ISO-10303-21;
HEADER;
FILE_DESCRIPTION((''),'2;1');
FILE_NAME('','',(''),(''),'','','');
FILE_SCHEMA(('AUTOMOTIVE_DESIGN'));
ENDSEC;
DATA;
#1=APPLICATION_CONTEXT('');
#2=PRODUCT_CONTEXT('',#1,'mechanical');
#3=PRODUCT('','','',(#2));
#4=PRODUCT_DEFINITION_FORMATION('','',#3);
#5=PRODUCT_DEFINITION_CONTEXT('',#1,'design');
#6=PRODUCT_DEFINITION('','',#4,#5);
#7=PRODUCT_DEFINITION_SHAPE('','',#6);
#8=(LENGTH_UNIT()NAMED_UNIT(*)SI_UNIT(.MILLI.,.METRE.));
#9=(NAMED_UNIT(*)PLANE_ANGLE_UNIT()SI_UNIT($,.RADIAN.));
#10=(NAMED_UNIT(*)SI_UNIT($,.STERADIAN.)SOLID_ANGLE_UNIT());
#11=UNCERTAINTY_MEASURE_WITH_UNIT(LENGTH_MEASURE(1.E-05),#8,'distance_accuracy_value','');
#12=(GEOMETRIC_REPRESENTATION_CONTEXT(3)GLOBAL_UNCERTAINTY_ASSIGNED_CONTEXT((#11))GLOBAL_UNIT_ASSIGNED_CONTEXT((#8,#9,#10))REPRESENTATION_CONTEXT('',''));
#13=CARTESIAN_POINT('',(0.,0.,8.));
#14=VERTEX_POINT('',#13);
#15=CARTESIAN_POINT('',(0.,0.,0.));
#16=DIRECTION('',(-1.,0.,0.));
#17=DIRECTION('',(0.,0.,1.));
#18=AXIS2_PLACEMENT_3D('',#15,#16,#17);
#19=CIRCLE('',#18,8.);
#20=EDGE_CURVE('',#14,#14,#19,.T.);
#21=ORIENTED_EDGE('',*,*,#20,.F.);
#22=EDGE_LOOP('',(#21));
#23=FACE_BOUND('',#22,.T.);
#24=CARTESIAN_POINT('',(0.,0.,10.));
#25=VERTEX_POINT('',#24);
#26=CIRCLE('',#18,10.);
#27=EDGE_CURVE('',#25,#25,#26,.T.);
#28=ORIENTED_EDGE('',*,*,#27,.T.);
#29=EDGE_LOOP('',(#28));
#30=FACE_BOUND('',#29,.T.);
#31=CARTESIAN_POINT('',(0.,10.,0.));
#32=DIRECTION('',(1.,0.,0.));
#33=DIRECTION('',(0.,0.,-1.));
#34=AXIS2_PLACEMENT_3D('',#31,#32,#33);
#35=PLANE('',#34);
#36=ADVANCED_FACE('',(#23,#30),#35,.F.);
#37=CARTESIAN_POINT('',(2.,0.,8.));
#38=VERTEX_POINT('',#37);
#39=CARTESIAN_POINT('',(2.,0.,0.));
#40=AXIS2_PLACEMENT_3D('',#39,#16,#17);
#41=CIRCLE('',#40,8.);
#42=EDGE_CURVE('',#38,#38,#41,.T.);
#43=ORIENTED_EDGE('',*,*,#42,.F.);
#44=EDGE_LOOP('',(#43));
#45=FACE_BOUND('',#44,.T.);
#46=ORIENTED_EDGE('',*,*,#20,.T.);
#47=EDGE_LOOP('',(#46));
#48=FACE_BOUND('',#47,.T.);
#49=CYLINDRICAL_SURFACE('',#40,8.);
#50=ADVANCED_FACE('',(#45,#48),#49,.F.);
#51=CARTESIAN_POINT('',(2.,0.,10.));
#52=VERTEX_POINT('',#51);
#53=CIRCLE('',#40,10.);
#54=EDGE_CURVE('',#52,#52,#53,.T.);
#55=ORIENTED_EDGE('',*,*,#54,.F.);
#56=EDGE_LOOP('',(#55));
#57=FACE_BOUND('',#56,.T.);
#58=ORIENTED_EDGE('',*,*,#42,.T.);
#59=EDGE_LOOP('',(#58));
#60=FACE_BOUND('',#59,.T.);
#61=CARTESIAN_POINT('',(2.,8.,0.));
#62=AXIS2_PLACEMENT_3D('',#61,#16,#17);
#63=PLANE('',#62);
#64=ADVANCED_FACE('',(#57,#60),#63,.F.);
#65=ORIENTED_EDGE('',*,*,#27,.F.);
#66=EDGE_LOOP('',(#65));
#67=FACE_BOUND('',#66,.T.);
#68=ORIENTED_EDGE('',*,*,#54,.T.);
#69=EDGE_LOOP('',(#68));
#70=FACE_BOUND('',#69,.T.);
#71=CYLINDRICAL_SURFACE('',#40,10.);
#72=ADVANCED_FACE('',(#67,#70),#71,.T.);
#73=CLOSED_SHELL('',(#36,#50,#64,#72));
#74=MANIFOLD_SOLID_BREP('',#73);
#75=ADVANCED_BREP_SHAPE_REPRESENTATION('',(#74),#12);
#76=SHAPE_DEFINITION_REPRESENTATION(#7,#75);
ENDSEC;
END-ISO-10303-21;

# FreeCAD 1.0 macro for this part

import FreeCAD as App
import Part
import Sketcher
Q = App.Units.Quantity

doc = App.newDocument("Part")
body = doc.addObject("PartDesign::Body", "Body")

sketch1 = body.newObject("Sketcher::SketchObject", "Sketch")
sketch1.AttachmentSupport = (doc.getObject("XY_Plane"), [""])
sketch1.MapMode = "FlatFace"
sketch1.addGeometry(Part.LineSegment(App.Vector(0, 10, 0), App.Vector(0, 8, 0)), False)
sketch1.addGeometry(Part.LineSegment(App.Vector(0, 8, 0), App.Vector(2, 8, 0)), False)
sketch1.addGeometry(Part.LineSegment(App.Vector(2, 8, 0), App.Vector(2, 10, 0)), False)
sketch1.addGeometry(Part.LineSegment(App.Vector(2, 10, 0), App.Vector(0, 10, 0)), False)
sketch1.addConstraint(Sketcher.Constraint("Coincident", 0, 2, 1, 1))
sketch1.addConstraint(Sketcher.Constraint("Coincident", 1, 2, 2, 1))
sketch1.addConstraint(Sketcher.Constraint("Coincident", 2, 2, 3, 1))
sketch1.addConstraint(Sketcher.Constraint("Coincident", 3, 2, 0, 1))
sketch1.addConstraint(Sketcher.Constraint("Vertical", 0))
sketch1.addConstraint(Sketcher.Constraint("Horizontal", 1))
sketch1.addConstraint(Sketcher.Constraint("Vertical", 2))
sketch1.addConstraint(Sketcher.Constraint("Horizontal", 3))
sketch1.addConstraint(Sketcher.Constraint("PointOnObject", 0, 2, -2))
sketch1.addConstraint(Sketcher.Constraint("Equal", 3, 0))
sketch1.addConstraint(Sketcher.Constraint("DistanceX", 1, 1, 1, 2, Q("2 mm")))
sketch1.addConstraint(Sketcher.Constraint("DistanceY", -1, 1, 0, 2, Q("8 mm")))
revolution = body.newObject("PartDesign::Revolution", "Revolution")
revolution.Profile = sketch1
revolution.ReferenceAxis = (sketch1, ["H_Axis"])
revolution.Angle = 360

doc.recompute()
